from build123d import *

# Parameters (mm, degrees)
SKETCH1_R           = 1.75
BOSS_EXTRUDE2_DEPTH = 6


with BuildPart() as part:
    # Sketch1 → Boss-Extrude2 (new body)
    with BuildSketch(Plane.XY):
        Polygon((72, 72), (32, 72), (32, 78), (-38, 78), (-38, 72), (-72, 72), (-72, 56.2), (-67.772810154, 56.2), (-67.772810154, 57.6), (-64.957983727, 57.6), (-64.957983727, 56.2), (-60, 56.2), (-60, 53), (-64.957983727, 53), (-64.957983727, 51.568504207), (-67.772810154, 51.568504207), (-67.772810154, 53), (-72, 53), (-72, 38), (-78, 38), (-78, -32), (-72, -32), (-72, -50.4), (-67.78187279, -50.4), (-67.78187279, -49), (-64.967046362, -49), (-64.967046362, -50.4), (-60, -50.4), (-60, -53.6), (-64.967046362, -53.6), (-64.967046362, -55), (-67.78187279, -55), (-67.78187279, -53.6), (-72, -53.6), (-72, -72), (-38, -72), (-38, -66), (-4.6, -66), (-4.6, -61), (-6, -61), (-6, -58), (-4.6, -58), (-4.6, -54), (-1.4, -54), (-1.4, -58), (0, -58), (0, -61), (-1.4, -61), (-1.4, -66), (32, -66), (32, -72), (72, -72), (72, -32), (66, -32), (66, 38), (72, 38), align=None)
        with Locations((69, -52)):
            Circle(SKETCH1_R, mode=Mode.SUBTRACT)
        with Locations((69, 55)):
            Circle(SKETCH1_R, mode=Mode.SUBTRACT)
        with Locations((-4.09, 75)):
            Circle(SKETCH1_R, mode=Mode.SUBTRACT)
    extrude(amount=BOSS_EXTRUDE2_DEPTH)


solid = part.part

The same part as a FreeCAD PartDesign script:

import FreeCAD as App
import Part
import Sketcher
Q = App.Units.Quantity

doc = App.newDocument("Part")
body = doc.addObject("PartDesign::Body", "Body")

# Sketch on XY plane
sketch1 = body.newObject("Sketcher::SketchObject", "Sketch")
sketch1.AttachmentSupport = (doc.getObject("XY_Plane"), [""])
sketch1.MapMode = "FlatFace"
sketch1.addGeometry([
    Part.LineSegment(App.Vector(72, 72, 0), App.Vector(32, 72, 0)),  # 0
    Part.LineSegment(App.Vector(32, 72, 0), App.Vector(32, 78, 0)),  # 1
    Part.LineSegment(App.Vector(32, 78, 0), App.Vector(-38, 78, 0)),  # 2
    Part.LineSegment(App.Vector(-38, 78, 0), App.Vector(-38, 72, 0)),  # 3
    Part.LineSegment(App.Vector(-38, 72, 0), App.Vector(-72, 72, 0)),  # 4
    Part.LineSegment(App.Vector(-72, 72, 0), App.Vector(-72, 56.2, 0)),  # 5
    Part.LineSegment(App.Vector(-72, 56.2, 0), App.Vector(-67.77281, 56.2, 0)),  # 6
    Part.LineSegment(App.Vector(-67.77281, 56.2, 0), App.Vector(-67.77281, 57.6, 0)),  # 7
    Part.LineSegment(App.Vector(-67.77281, 57.6, 0), App.Vector(-64.957984, 57.6, 0)),  # 8
    Part.LineSegment(App.Vector(-64.957984, 57.6, 0), App.Vector(-64.957984, 56.2, 0)),  # 9
    Part.LineSegment(App.Vector(-64.957984, 56.2, 0), App.Vector(-60, 56.2, 0)),  # 10
    Part.LineSegment(App.Vector(-60, 56.2, 0), App.Vector(-60, 53, 0)),  # 11
    Part.LineSegment(App.Vector(-60, 53, 0), App.Vector(-64.957984, 53, 0)),  # 12
    Part.LineSegment(App.Vector(-64.957984, 53, 0), App.Vector(-64.957984, 51.568504, 0)),  # 13
    Part.LineSegment(App.Vector(-64.957984, 51.568504, 0), App.Vector(-67.77281, 51.568504, 0)),  # 14
    Part.LineSegment(App.Vector(-67.77281, 51.568504, 0), App.Vector(-67.77281, 53, 0)),  # 15
    Part.LineSegment(App.Vector(-67.77281, 53, 0), App.Vector(-72, 53, 0)),  # 16
    Part.LineSegment(App.Vector(-72, 53, 0), App.Vector(-72, 38, 0)),  # 17
    Part.LineSegment(App.Vector(-72, 38, 0), App.Vector(-78, 38, 0)),  # 18
    Part.LineSegment(App.Vector(-78, 38, 0), App.Vector(-78, -32, 0)),  # 19
    Part.LineSegment(App.Vector(-78, -32, 0), App.Vector(-72, -32, 0)),  # 20
    Part.LineSegment(App.Vector(-72, -32, 0), App.Vector(-72, -50.4, 0)),  # 21
    Part.LineSegment(App.Vector(-72, -50.4, 0), App.Vector(-67.781873, -50.4, 0)),  # 22
    Part.LineSegment(App.Vector(-67.781873, -50.4, 0), App.Vector(-67.781873, -49, 0)),  # 23
    Part.LineSegment(App.Vector(-67.781873, -49, 0), App.Vector(-64.967046, -49, 0)),  # 24
    Part.LineSegment(App.Vector(-64.967046, -49, 0), App.Vector(-64.967046, -50.4, 0)),  # 25
    Part.LineSegment(App.Vector(-64.967046, -50.4, 0), App.Vector(-60, -50.4, 0)),  # 26
    Part.LineSegment(App.Vector(-60, -50.4, 0), App.Vector(-60, -53.6, 0)),  # 27
    Part.LineSegment(App.Vector(-60, -53.6, 0), App.Vector(-64.967046, -53.6, 0)),  # 28
    Part.LineSegment(App.Vector(-64.967046, -53.6, 0), App.Vector(-64.967046, -55, 0)),  # 29
    Part.LineSegment(App.Vector(-64.967046, -55, 0), App.Vector(-67.781873, -55, 0)),  # 30
    Part.LineSegment(App.Vector(-67.781873, -55, 0), App.Vector(-67.781873, -53.6, 0)),  # 31
    Part.LineSegment(App.Vector(-67.781873, -53.6, 0), App.Vector(-72, -53.6, 0)),  # 32
    Part.LineSegment(App.Vector(-72, -53.6, 0), App.Vector(-72, -72, 0)),  # 33
    Part.LineSegment(App.Vector(-72, -72, 0), App.Vector(-38, -72, 0)),  # 34
    Part.LineSegment(App.Vector(-38, -72, 0), App.Vector(-38, -66, 0)),  # 35
    Part.LineSegment(App.Vector(-38, -66, 0), App.Vector(-4.6, -66, 0)),  # 36
    Part.LineSegment(App.Vector(-4.6, -66, 0), App.Vector(-4.6, -61, 0)),  # 37
    Part.LineSegment(App.Vector(-4.6, -61, 0), App.Vector(-6, -61, 0)),  # 38
    Part.LineSegment(App.Vector(-6, -61, 0), App.Vector(-6, -58, 0)),  # 39
    Part.LineSegment(App.Vector(-6, -58, 0), App.Vector(-4.6, -58, 0)),  # 40
    Part.LineSegment(App.Vector(-4.6, -58, 0), App.Vector(-4.6, -54, 0)),  # 41
    Part.LineSegment(App.Vector(-4.6, -54, 0), App.Vector(-1.4, -54, 0)),  # 42
    Part.LineSegment(App.Vector(-1.4, -54, 0), App.Vector(-1.4, -58, 0)),  # 43
    Part.LineSegment(App.Vector(-1.4, -58, 0), App.Vector(0, -58, 0)),  # 44
    Part.LineSegment(App.Vector(0, -58, 0), App.Vector(0, -61, 0)),  # 45
    Part.LineSegment(App.Vector(0, -61, 0), App.Vector(-1.4, -61, 0)),  # 46
    Part.LineSegment(App.Vector(-1.4, -61, 0), App.Vector(-1.4, -66, 0)),  # 47
    Part.LineSegment(App.Vector(-1.4, -66, 0), App.Vector(32, -66, 0)),  # 48
    Part.LineSegment(App.Vector(32, -66, 0), App.Vector(32, -72, 0)),  # 49
    Part.LineSegment(App.Vector(32, -72, 0), App.Vector(72, -72, 0)),  # 50
    Part.LineSegment(App.Vector(72, -72, 0), App.Vector(72, -32, 0)),  # 51
    Part.LineSegment(App.Vector(72, -32, 0), App.Vector(66, -32, 0)),  # 52
    Part.LineSegment(App.Vector(66, -32, 0), App.Vector(66, 38, 0)),  # 53
    Part.LineSegment(App.Vector(66, 38, 0), App.Vector(72, 38, 0)),  # 54
    Part.LineSegment(App.Vector(72, 38, 0), App.Vector(72, 72, 0)),  # 55
    Part.Circle(App.Vector(69, -52, 0), App.Vector(0, 0, 1), 1.75),  # 56
    Part.Circle(App.Vector(-4.09, 75, 0), App.Vector(0, 0, 1), 1.75),  # 57
    Part.Circle(App.Vector(69, 55, 0), App.Vector(0, 0, 1), 1.75),  # 58
], False)
sketch1.addConstraint([
    Sketcher.Constraint("Coincident", 0, 2, 1, 1),
    Sketcher.Constraint("Coincident", 1, 2, 2, 1),
    Sketcher.Constraint("Coincident", 2, 2, 3, 1),
    Sketcher.Constraint("Coincident", 3, 2, 4, 1),
    Sketcher.Constraint("Coincident", 4, 2, 5, 1),
    Sketcher.Constraint("Coincident", 5, 2, 6, 1),
    Sketcher.Constraint("Coincident", 6, 2, 7, 1),
    Sketcher.Constraint("Coincident", 7, 2, 8, 1),
    Sketcher.Constraint("Coincident", 8, 2, 9, 1),
    Sketcher.Constraint("Coincident", 9, 2, 10, 1),
    Sketcher.Constraint("Coincident", 10, 2, 11, 1),
    Sketcher.Constraint("Coincident", 11, 2, 12, 1),
    Sketcher.Constraint("Coincident", 12, 2, 13, 1),
    Sketcher.Constraint("Coincident", 13, 2, 14, 1),
    Sketcher.Constraint("Coincident", 14, 2, 15, 1),
    Sketcher.Constraint("Coincident", 15, 2, 16, 1),
    Sketcher.Constraint("Coincident", 16, 2, 17, 1),
    Sketcher.Constraint("Coincident", 17, 2, 18, 1),
    Sketcher.Constraint("Coincident", 18, 2, 19, 1),
    Sketcher.Constraint("Coincident", 19, 2, 20, 1),
    Sketcher.Constraint("Coincident", 20, 2, 21, 1),
    Sketcher.Constraint("Coincident", 21, 2, 22, 1),
    Sketcher.Constraint("Coincident", 22, 2, 23, 1),
    Sketcher.Constraint("Coincident", 23, 2, 24, 1),
    Sketcher.Constraint("Coincident", 24, 2, 25, 1),
    Sketcher.Constraint("Coincident", 25, 2, 26, 1),
    Sketcher.Constraint("Coincident", 26, 2, 27, 1),
    Sketcher.Constraint("Coincident", 27, 2, 28, 1),
    Sketcher.Constraint("Coincident", 28, 2, 29, 1),
    Sketcher.Constraint("Coincident", 29, 2, 30, 1),
    Sketcher.Constraint("Coincident", 30, 2, 31, 1),
    Sketcher.Constraint("Coincident", 31, 2, 32, 1),
    Sketcher.Constraint("Coincident", 32, 2, 33, 1),
    Sketcher.Constraint("Coincident", 33, 2, 34, 1),
    Sketcher.Constraint("Coincident", 34, 2, 35, 1),
    Sketcher.Constraint("Coincident", 35, 2, 36, 1),
    Sketcher.Constraint("Coincident", 36, 2, 37, 1),
    Sketcher.Constraint("Coincident", 37, 2, 38, 1),
    Sketcher.Constraint("Coincident", 38, 2, 39, 1),
    Sketcher.Constraint("Coincident", 39, 2, 40, 1),
    Sketcher.Constraint("Coincident", 40, 2, 41, 1),
    Sketcher.Constraint("Coincident", 41, 2, 42, 1),
    Sketcher.Constraint("Coincident", 42, 2, 43, 1),
    Sketcher.Constraint("Coincident", 43, 2, 44, 1),
    Sketcher.Constraint("Coincident", 44, 2, 45, 1),
    Sketcher.Constraint("Coincident", 45, 2, 46, 1),
    Sketcher.Constraint("Coincident", 46, 2, 47, 1),
    Sketcher.Constraint("Coincident", 47, 2, 48, 1),
    Sketcher.Constraint("Coincident", 48, 2, 49, 1),
    Sketcher.Constraint("Coincident", 49, 2, 50, 1),
    Sketcher.Constraint("Coincident", 50, 2, 51, 1),
    Sketcher.Constraint("Coincident", 51, 2, 52, 1),
    Sketcher.Constraint("Coincident", 52, 2, 53, 1),
    Sketcher.Constraint("Coincident", 53, 2, 54, 1),
    Sketcher.Constraint("Coincident", 54, 2, 55, 1),
    Sketcher.Constraint("Coincident", 55, 2, 0, 1),
    Sketcher.Constraint("Horizontal", 0),
    Sketcher.Constraint("Vertical", 1),
    Sketcher.Constraint("Horizontal", 2),
    Sketcher.Constraint("Vertical", 3),
    Sketcher.Constraint("Horizontal", 4),
    Sketcher.Constraint("Vertical", 5),
    Sketcher.Constraint("Horizontal", 6),
    Sketcher.Constraint("Vertical", 7),
    Sketcher.Constraint("Horizontal", 8),
    Sketcher.Constraint("Vertical", 9),
    Sketcher.Constraint("Horizontal", 10),
    Sketcher.Constraint("Vertical", 11),
    Sketcher.Constraint("Horizontal", 12),
    Sketcher.Constraint("Vertical", 13),
    Sketcher.Constraint("Horizontal", 14),
    Sketcher.Constraint("Vertical", 15),
    Sketcher.Constraint("Horizontal", 16),
    Sketcher.Constraint("Vertical", 17),
    Sketcher.Constraint("Horizontal", 18),
    Sketcher.Constraint("Vertical", 19),
    Sketcher.Constraint("Horizontal", 20),
    Sketcher.Constraint("Vertical", 21),
    Sketcher.Constraint("Horizontal", 22),
    Sketcher.Constraint("Vertical", 23),
    Sketcher.Constraint("Horizontal", 24),
    Sketcher.Constraint("Vertical", 25),
    Sketcher.Constraint("Horizontal", 26),
    Sketcher.Constraint("Vertical", 27),
    Sketcher.Constraint("Horizontal", 28),
    Sketcher.Constraint("Vertical", 29),
    Sketcher.Constraint("Horizontal", 30),
    Sketcher.Constraint("Vertical", 31),
    Sketcher.Constraint("Horizontal", 32),
    Sketcher.Constraint("Vertical", 33),
    Sketcher.Constraint("Horizontal", 34),
    Sketcher.Constraint("Vertical", 35),
    Sketcher.Constraint("Horizontal", 36),
    Sketcher.Constraint("Vertical", 37),
    Sketcher.Constraint("Horizontal", 38),
    Sketcher.Constraint("Vertical", 39),
    Sketcher.Constraint("Horizontal", 40),
    Sketcher.Constraint("Vertical", 41),
    Sketcher.Constraint("Horizontal", 42),
    Sketcher.Constraint("Vertical", 43),
    Sketcher.Constraint("Horizontal", 44),
    Sketcher.Constraint("Vertical", 45),
    Sketcher.Constraint("Horizontal", 46),
    Sketcher.Constraint("Vertical", 47),
    Sketcher.Constraint("Horizontal", 48),
    Sketcher.Constraint("Vertical", 49),
    Sketcher.Constraint("Horizontal", 50),
    Sketcher.Constraint("Vertical", 51),
    Sketcher.Constraint("Horizontal", 52),
    Sketcher.Constraint("Vertical", 53),
    Sketcher.Constraint("Horizontal", 54),
    Sketcher.Constraint("Vertical", 55),
    Sketcher.Constraint("Equal", 56, 57),
    Sketcher.Constraint("Equal", 57, 58),
    Sketcher.Constraint("Symmetric", 4, 2, 50, 2, -1, 1),
    Sketcher.Constraint("Symmetric", 33, 2, 55, 2, -1, 1),
    Sketcher.Constraint("Symmetric", 33, 2, 50, 2, -2),
    Sketcher.Constraint("Symmetric", 20, 2, 51, 2, -2),
    Sketcher.Constraint("Symmetric", 17, 2, 54, 2, -2),
    Sketcher.Constraint("PointOnObject", 44, 2, -2),
    Sketcher.Constraint("Horizontal", 6, 2, 9, 2),
    Sketcher.Constraint("Horizontal", 12, 2, 15, 2),
    Sketcher.Constraint("Horizontal", 22, 2, 25, 2),
    Sketcher.Constraint("Horizontal", 28, 2, 31, 2),
    Sketcher.Constraint("Horizontal", 40, 2, 43, 2),
    Sketcher.Constraint("Horizontal", 38, 2, 45, 2),
    Sketcher.Constraint("Horizontal", 36, 2, 47, 2),
    Sketcher.Constraint("Vertical", 56, 3, 58, 3),
    Sketcher.Constraint("Vertical", 9, 2, 12, 2),
    Sketcher.Constraint("Vertical", 7, 2, 14, 2),
    Sketcher.Constraint("Vertical", 11, 2, 26, 2),
    Sketcher.Constraint("Vertical", 25, 2, 28, 2),
    Sketcher.Constraint("Vertical", 23, 2, 30, 2),
    Sketcher.Constraint("Vertical", 3, 2, 34, 2),
    Sketcher.Constraint("Vertical", 37, 2, 40, 2),
    Sketcher.Constraint("Vertical", 43, 2, 46, 2),
    Sketcher.Constraint("Vertical", 1, 2, 48, 2),
    Sketcher.Constraint("Equal", 14, 24),
    Sketcher.Constraint("Equal", 40, 44),
    Sketcher.Constraint("Equal", 36, 48),
    Sketcher.Constraint("Equal", 20, 52),
    Sketcher.Constraint("Equal", 54, 1),
    Sketcher.Constraint("Equal", 46, 7),
    Sketcher.Constraint("Equal", 42, 11),
    Sketcher.Constraint("Equal", 2, 19),
    Sketcher.Constraint("Equal", 9, 23),
    Sketcher.Constraint("Equal", 11, 27),
    Sketcher.Constraint("Equal", 25, 29),
    Sketcher.Constraint("Equal", 21, 33),
    Sketcher.Constraint("Equal", 3, 35),
    Sketcher.Constraint("Equal", 50, 51),
    Sketcher.Constraint("Equal", 34, 55),
    Sketcher.Constraint("Diameter", 56, Q("3.5 mm")),
    Sketcher.Constraint("DistanceX", 0, 2, 0, 1, Q("40 mm")),
    Sketcher.Constraint("DistanceX", 2, 2, 2, 1, Q("70 mm")),
    Sketcher.Constraint("DistanceX", 4, 2, 4, 1, Q("34 mm")),
    Sketcher.Constraint("DistanceX", 18, 2, 18, 1, Q("6 mm")),
    Sketcher.Constraint("DistanceY", 17, 2, 17, 1, Q("15 mm")),
    Sketcher.Constraint("DistanceY", 37, 1, 37, 2, Q("5 mm")),
    Sketcher.Constraint("DistanceY", 39, 1, 39, 2, Q("3 mm")),
    Sketcher.Constraint("DistanceY", 41, 1, 41, 2, Q("4 mm")),
    Sketcher.Constraint("DistanceX", 36, 1, 36, 2, Q("33.4 mm")),
    Sketcher.Constraint("DistanceX", -1, 1, 56, 3, Q("69 mm")),
    Sketcher.Constraint("DistanceY", 56, 3, -1, 1, Q("52 mm")),
    Sketcher.Constraint("DistanceY", -1, 1, 57, 3, Q("75 mm")),
    Sketcher.Constraint("DistanceY", -1, 1, 58, 3, Q("55 mm")),
    Sketcher.Constraint("DistanceX", 10, 2, -1, 1, Q("60 mm")),
    Sketcher.Constraint("DistanceX", 57, 3, -1, 1, Q("4.09 mm")),
    Sketcher.Constraint("DistanceX", 6, 1, 6, 2, Q("4.22719 mm")),
    Sketcher.Constraint("DistanceX", 8, 1, 8, 2, Q("2.814826 mm")),
    Sketcher.Constraint("DistanceX", 22, 1, 22, 2, Q("4.218127 mm")),
    Sketcher.Constraint("DistanceY", 13, 2, 13, 1, Q("1.431496 mm")),
])
pad1 = body.newObject("PartDesign::Pad", "Pad")
pad1.Profile = sketch1
pad1.Length = 6

doc.recompute()
